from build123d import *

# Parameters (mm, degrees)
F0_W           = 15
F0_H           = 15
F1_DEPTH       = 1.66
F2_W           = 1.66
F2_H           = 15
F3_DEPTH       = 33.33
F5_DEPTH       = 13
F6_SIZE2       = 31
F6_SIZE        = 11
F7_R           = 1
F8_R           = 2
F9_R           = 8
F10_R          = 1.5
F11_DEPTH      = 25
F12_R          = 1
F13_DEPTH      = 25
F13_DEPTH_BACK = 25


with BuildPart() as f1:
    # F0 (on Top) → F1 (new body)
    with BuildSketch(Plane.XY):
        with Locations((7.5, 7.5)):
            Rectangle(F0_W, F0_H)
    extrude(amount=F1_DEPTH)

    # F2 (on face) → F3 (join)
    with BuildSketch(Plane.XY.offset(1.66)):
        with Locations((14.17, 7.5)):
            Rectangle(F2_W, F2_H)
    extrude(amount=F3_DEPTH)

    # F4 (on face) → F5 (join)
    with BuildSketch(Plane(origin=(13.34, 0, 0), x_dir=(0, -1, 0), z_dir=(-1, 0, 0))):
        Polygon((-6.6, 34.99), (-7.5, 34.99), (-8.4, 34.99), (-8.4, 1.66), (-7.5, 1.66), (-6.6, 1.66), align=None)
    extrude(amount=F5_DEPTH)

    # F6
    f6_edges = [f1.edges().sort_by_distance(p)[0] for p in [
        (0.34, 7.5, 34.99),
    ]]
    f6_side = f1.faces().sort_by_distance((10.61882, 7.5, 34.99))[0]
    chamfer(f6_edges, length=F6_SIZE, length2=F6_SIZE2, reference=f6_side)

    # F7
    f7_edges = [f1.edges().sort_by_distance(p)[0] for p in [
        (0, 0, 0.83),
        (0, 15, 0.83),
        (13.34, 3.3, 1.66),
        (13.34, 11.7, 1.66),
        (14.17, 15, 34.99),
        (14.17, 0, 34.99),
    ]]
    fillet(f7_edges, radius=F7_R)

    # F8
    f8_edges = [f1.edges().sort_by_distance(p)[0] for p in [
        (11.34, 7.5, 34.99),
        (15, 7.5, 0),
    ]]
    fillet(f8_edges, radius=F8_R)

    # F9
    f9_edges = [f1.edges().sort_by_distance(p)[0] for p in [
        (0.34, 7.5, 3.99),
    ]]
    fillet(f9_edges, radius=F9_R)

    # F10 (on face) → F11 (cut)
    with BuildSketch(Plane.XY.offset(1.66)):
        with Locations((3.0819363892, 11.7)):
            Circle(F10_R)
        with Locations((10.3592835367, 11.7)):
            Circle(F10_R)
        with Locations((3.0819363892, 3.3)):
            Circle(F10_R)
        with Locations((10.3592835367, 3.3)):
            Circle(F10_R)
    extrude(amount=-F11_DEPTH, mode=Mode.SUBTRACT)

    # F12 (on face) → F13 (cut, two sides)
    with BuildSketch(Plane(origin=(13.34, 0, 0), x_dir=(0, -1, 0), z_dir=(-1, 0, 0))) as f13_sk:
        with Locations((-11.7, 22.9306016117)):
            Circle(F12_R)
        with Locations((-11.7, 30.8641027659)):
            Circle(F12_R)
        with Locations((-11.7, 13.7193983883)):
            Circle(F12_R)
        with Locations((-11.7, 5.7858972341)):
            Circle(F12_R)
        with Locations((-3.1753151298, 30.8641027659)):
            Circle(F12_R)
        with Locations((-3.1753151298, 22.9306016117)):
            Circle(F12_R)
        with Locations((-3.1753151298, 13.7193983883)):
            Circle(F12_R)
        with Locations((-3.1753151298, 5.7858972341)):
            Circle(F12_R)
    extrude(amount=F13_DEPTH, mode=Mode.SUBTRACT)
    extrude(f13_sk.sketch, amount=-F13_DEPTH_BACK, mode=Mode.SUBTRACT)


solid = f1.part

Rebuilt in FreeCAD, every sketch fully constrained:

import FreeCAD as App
import Part
import Sketcher
Q = App.Units.Quantity


def edges_at(feature, points):
    """Names of the edges that pass closest to the given points."""
    edges = feature.Shape.Edges
    near = lambda p: min(range(len(edges)), key=lambda i: edges[i].distToShape(Part.Vertex(*p))[0])
    return sorted({f"Edge{near(p) + 1}" for p in points})

doc = App.newDocument("Part")
body = doc.addObject("PartDesign::Body", "Body")

sketch1 = body.newObject("Sketcher::SketchObject", "Sketch")
sketch1.AttachmentSupport = (doc.getObject("XY_Plane"), [""])
sketch1.MapMode = "FlatFace"
sketch1.addGeometry([
    Part.LineSegment(App.Vector(0, 15, 0), App.Vector(0, 0, 0)),
    Part.LineSegment(App.Vector(0, 0, 0), App.Vector(15, 0, 0)),
    Part.LineSegment(App.Vector(15, 0, 0), App.Vector(15, 15, 0)),
    Part.LineSegment(App.Vector(15, 15, 0), App.Vector(0, 15, 0)),
], False)
sketch1.addConstraint([
    Sketcher.Constraint("Coincident", 0, 2, 1, 1),
    Sketcher.Constraint("Coincident", 1, 2, 2, 1),
    Sketcher.Constraint("Coincident", 2, 2, 3, 1),
    Sketcher.Constraint("Coincident", 3, 2, 0, 1),
    Sketcher.Constraint("Vertical", 0),
    Sketcher.Constraint("Horizontal", 1),
    Sketcher.Constraint("Vertical", 2),
    Sketcher.Constraint("Horizontal", 3),
    Sketcher.Constraint("Coincident", 0, 2, -1, 1),
    Sketcher.Constraint("Equal", 3, 0),
    Sketcher.Constraint("DistanceX", 1, 1, 1, 2, Q("15 mm")),
])
pad1 = body.newObject("PartDesign::Pad", "Pad")
pad1.Profile = sketch1
pad1.Length = 1.66

sketch2 = body.newObject("Sketcher::SketchObject", "Sketch001")
sketch2.AttachmentSupport = (doc.getObject("XY_Plane"), [""])
sketch2.MapMode = "FlatFace"
sketch2.AttachmentOffset = App.Placement(App.Vector(0, 0, 1.66), App.Rotation())
sketch2.addGeometry([
    Part.LineSegment(App.Vector(13.34, 15, 0), App.Vector(13.34, 0, 0)),
    Part.LineSegment(App.Vector(13.34, 0, 0), App.Vector(15, 0, 0)),
    Part.LineSegment(App.Vector(15, 0, 0), App.Vector(15, 15, 0)),
    Part.LineSegment(App.Vector(15, 15, 0), App.Vector(13.34, 15, 0)),
], False)
sketch2.addConstraint([
    Sketcher.Constraint("Coincident", 0, 2, 1, 1),
    Sketcher.Constraint("Coincident", 1, 2, 2, 1),
    Sketcher.Constraint("Coincident", 2, 2, 3, 1),
    Sketcher.Constraint("Coincident", 3, 2, 0, 1),
    Sketcher.Constraint("Vertical", 0),
    Sketcher.Constraint("Horizontal", 1),
    Sketcher.Constraint("Vertical", 2),
    Sketcher.Constraint("Horizontal", 3),
    Sketcher.Constraint("PointOnObject", 0, 2, -1),
    Sketcher.Constraint("DistanceY", 0, 2, 0, 1, Q("15 mm")),
    Sketcher.Constraint("DistanceX", -1, 1, 1, 2, Q("15 mm")),
    Sketcher.Constraint("DistanceX", 1, 1, 1, 2, Q("1.66 mm")),
])
pad2 = body.newObject("PartDesign::Pad", "Pad001")
pad2.Profile = sketch2
pad2.Length = 33.33

sketch3 = body.newObject("Sketcher::SketchObject", "Sketch002")
sketch3.AttachmentSupport = (doc.getObject("YZ_Plane"), [""])
sketch3.MapMode = "FlatFace"
sketch3.AttachmentOffset = App.Placement(App.Vector(0, 0, 13.34), App.Rotation())
sketch3.addGeometry([
    Part.LineSegment(App.Vector(6.6, 34.99, 0), App.Vector(8.4, 34.99, 0)),
    Part.LineSegment(App.Vector(8.4, 34.99, 0), App.Vector(8.4, 1.66, 0)),
    Part.LineSegment(App.Vector(8.4, 1.66, 0), App.Vector(6.6, 1.66, 0)),
    Part.LineSegment(App.Vector(6.6, 1.66, 0), App.Vector(6.6, 34.99, 0)),
], False)
sketch3.addConstraint([
    Sketcher.Constraint("Coincident", 0, 2, 1, 1),
    Sketcher.Constraint("Coincident", 1, 2, 2, 1),
    Sketcher.Constraint("Coincident", 2, 2, 3, 1),
    Sketcher.Constraint("Coincident", 3, 2, 0, 1),
    Sketcher.Constraint("Horizontal", 0),
    Sketcher.Constraint("Vertical", 1),
    Sketcher.Constraint("Horizontal", 2),
    Sketcher.Constraint("Vertical", 3),
    Sketcher.Constraint("DistanceX", 0, 1, 0, 2, Q("1.8 mm")),
    Sketcher.Constraint("DistanceY", 1, 2, 1, 1, Q("33.33 mm")),
    Sketcher.Constraint("DistanceX", -1, 1, 0, 2, Q("8.4 mm")),
    Sketcher.Constraint("DistanceY", -1, 1, 0, 2, Q("34.99 mm")),
])
pad3 = body.newObject("PartDesign::Pad", "Pad002")
pad3.Profile = sketch3
pad3.Length = 13
pad3.Reversed = True
doc.recompute()

chamfer = body.newObject("PartDesign::Chamfer", "Chamfer")
chamfer.Base = (pad3, edges_at(pad3, [(0.34, 7.5, 34.99)]))
chamfer.ChamferType = "Two distances"
chamfer.Size = 11
chamfer.Size2 = 31
chamfer.FlipDirection = True
doc.recompute()

fillet = body.newObject("PartDesign::Fillet", "Fillet")
fillet.Base = (chamfer, edges_at(chamfer, [
    (0, 0, 0.83),
    (0, 15, 0.83),
    (13.34, 3.3, 1.66),
    (13.34, 11.7, 1.66),
    (14.17, 15, 34.99),
    (14.17, 0, 34.99),
]))
fillet.Radius = 1
doc.recompute()

fillet2 = body.newObject("PartDesign::Fillet", "Fillet001")
fillet2.Base = (fillet, edges_at(fillet, [(11.34, 7.5, 34.99), (15, 7.5, 0)]))
fillet2.Radius = 2
doc.recompute()

fillet3 = body.newObject("PartDesign::Fillet", "Fillet002")
fillet3.Base = (fillet2, edges_at(fillet2, [(0.34, 7.5, 3.99)]))
fillet3.Radius = 8

sketch4 = body.newObject("Sketcher::SketchObject", "Sketch003")
sketch4.AttachmentSupport = (doc.getObject("XY_Plane"), [""])
sketch4.MapMode = "FlatFace"
sketch4.AttachmentOffset = App.Placement(App.Vector(0, 0, 1.66), App.Rotation())
sketch4.addGeometry([
    Part.Circle(App.Vector(3.081936, 11.7, 0), App.Vector(0, 0, 1), 1.5),
    Part.Circle(App.Vector(10.359284, 11.7, 0), App.Vector(0, 0, 1), 1.5),
    Part.Circle(App.Vector(3.081936, 3.3, 0), App.Vector(0, 0, 1), 1.5),
    Part.Circle(App.Vector(10.359284, 3.3, 0), App.Vector(0, 0, 1), 1.5),
], False)
sketch4.addConstraint([
    Sketcher.Constraint("Equal", 0, 1),
    Sketcher.Constraint("Equal", 1, 2),
    Sketcher.Constraint("Equal", 2, 3),
    Sketcher.Constraint("Horizontal", 0, 3, 1, 3),
    Sketcher.Constraint("Horizontal", 2, 3, 3, 3),
    Sketcher.Constraint("Vertical", 0, 3, 2, 3),
    Sketcher.Constraint("Vertical", 1, 3, 3, 3),
    Sketcher.Constraint("Diameter", 0, Q("3 mm")),
    Sketcher.Constraint("DistanceY", -1, 1, 0, 3, Q("11.7 mm")),
    Sketcher.Constraint("DistanceY", -1, 1, 2, 3, Q("3.3 mm")),
    Sketcher.Constraint("DistanceX", -1, 1, 0, 3, Q("3.081936 mm")),
    Sketcher.Constraint("DistanceX", -1, 1, 1, 3, Q("10.359284 mm")),
])
pocket1 = body.newObject("PartDesign::Pocket", "Pocket")
pocket1.Profile = sketch4
pocket1.Length = 25

sketch5 = body.newObject("Sketcher::SketchObject", "Sketch004")
sketch5.AttachmentSupport = (doc.getObject("YZ_Plane"), [""])
sketch5.MapMode = "FlatFace"
sketch5.AttachmentOffset = App.Placement(App.Vector(0, 0, 13.34), App.Rotation())
sketch5.addGeometry([
    Part.Circle(App.Vector(11.7, 22.930602, 0), App.Vector(0, 0, 1), 1),
    Part.Circle(App.Vector(11.7, 30.864103, 0), App.Vector(0, 0, 1), 1),
    Part.Circle(App.Vector(11.7, 13.719398, 0), App.Vector(0, 0, 1), 1),
    Part.Circle(App.Vector(11.7, 5.785897, 0), App.Vector(0, 0, 1), 1),
    Part.Circle(App.Vector(3.175315, 30.864103, 0), App.Vector(0, 0, 1), 1),
    Part.Circle(App.Vector(3.175315, 22.930602, 0), App.Vector(0, 0, 1), 1),
    Part.Circle(App.Vector(3.175315, 13.719398, 0), App.Vector(0, 0, 1), 1),
    Part.Circle(App.Vector(3.175315, 5.785897, 0), App.Vector(0, 0, 1), 1),
], False)
sketch5.addConstraint([
    Sketcher.Constraint("Equal", 0, 1),
    Sketcher.Constraint("Equal", 1, 2),
    Sketcher.Constraint("Equal", 2, 3),
    Sketcher.Constraint("Equal", 3, 4),
    Sketcher.Constraint("Equal", 4, 5),
    Sketcher.Constraint("Equal", 5, 6),
    Sketcher.Constraint("Equal", 6, 7),
    Sketcher.Constraint("Horizontal", 1, 3, 4, 3),
    Sketcher.Constraint("Horizontal", 0, 3, 5, 3),
    Sketcher.Constraint("Horizontal", 2, 3, 6, 3),
    Sketcher.Constraint("Horizontal", 3, 3, 7, 3),
    Sketcher.Constraint("Vertical", 0, 3, 1, 3),
    Sketcher.Constraint("Vertical", 1, 3, 2, 3),
    Sketcher.Constraint("Vertical", 2, 3, 3, 3),
    Sketcher.Constraint("Vertical", 4, 3, 5, 3),
    Sketcher.Constraint("Vertical", 5, 3, 6, 3),
    Sketcher.Constraint("Vertical", 6, 3, 7, 3),
    Sketcher.Constraint("Diameter", 0, Q("2 mm")),
    Sketcher.Constraint("DistanceX", -1, 1, 0, 3, Q("11.7 mm")),
    Sketcher.Constraint("DistanceY", -1, 1, 0, 3, Q("22.930602 mm")),
    Sketcher.Constraint("DistanceY", -1, 1, 2, 3, Q("13.719398 mm")),
    Sketcher.Constraint("DistanceY", 0, 3, 1, 3, Q("7.933501 mm")),
    Sketcher.Constraint("DistanceY", 3, 3, 2, 3, Q("7.933501 mm")),
    Sketcher.Constraint("DistanceX", -1, 1, 4, 3, Q("3.175315 mm")),
])
pocket2 = body.newObject("PartDesign::Pocket", "Pocket001")
pocket2.Profile = sketch5
pocket2.Type = "ThroughAll"
pocket2.Midplane = True

doc.recompute()
